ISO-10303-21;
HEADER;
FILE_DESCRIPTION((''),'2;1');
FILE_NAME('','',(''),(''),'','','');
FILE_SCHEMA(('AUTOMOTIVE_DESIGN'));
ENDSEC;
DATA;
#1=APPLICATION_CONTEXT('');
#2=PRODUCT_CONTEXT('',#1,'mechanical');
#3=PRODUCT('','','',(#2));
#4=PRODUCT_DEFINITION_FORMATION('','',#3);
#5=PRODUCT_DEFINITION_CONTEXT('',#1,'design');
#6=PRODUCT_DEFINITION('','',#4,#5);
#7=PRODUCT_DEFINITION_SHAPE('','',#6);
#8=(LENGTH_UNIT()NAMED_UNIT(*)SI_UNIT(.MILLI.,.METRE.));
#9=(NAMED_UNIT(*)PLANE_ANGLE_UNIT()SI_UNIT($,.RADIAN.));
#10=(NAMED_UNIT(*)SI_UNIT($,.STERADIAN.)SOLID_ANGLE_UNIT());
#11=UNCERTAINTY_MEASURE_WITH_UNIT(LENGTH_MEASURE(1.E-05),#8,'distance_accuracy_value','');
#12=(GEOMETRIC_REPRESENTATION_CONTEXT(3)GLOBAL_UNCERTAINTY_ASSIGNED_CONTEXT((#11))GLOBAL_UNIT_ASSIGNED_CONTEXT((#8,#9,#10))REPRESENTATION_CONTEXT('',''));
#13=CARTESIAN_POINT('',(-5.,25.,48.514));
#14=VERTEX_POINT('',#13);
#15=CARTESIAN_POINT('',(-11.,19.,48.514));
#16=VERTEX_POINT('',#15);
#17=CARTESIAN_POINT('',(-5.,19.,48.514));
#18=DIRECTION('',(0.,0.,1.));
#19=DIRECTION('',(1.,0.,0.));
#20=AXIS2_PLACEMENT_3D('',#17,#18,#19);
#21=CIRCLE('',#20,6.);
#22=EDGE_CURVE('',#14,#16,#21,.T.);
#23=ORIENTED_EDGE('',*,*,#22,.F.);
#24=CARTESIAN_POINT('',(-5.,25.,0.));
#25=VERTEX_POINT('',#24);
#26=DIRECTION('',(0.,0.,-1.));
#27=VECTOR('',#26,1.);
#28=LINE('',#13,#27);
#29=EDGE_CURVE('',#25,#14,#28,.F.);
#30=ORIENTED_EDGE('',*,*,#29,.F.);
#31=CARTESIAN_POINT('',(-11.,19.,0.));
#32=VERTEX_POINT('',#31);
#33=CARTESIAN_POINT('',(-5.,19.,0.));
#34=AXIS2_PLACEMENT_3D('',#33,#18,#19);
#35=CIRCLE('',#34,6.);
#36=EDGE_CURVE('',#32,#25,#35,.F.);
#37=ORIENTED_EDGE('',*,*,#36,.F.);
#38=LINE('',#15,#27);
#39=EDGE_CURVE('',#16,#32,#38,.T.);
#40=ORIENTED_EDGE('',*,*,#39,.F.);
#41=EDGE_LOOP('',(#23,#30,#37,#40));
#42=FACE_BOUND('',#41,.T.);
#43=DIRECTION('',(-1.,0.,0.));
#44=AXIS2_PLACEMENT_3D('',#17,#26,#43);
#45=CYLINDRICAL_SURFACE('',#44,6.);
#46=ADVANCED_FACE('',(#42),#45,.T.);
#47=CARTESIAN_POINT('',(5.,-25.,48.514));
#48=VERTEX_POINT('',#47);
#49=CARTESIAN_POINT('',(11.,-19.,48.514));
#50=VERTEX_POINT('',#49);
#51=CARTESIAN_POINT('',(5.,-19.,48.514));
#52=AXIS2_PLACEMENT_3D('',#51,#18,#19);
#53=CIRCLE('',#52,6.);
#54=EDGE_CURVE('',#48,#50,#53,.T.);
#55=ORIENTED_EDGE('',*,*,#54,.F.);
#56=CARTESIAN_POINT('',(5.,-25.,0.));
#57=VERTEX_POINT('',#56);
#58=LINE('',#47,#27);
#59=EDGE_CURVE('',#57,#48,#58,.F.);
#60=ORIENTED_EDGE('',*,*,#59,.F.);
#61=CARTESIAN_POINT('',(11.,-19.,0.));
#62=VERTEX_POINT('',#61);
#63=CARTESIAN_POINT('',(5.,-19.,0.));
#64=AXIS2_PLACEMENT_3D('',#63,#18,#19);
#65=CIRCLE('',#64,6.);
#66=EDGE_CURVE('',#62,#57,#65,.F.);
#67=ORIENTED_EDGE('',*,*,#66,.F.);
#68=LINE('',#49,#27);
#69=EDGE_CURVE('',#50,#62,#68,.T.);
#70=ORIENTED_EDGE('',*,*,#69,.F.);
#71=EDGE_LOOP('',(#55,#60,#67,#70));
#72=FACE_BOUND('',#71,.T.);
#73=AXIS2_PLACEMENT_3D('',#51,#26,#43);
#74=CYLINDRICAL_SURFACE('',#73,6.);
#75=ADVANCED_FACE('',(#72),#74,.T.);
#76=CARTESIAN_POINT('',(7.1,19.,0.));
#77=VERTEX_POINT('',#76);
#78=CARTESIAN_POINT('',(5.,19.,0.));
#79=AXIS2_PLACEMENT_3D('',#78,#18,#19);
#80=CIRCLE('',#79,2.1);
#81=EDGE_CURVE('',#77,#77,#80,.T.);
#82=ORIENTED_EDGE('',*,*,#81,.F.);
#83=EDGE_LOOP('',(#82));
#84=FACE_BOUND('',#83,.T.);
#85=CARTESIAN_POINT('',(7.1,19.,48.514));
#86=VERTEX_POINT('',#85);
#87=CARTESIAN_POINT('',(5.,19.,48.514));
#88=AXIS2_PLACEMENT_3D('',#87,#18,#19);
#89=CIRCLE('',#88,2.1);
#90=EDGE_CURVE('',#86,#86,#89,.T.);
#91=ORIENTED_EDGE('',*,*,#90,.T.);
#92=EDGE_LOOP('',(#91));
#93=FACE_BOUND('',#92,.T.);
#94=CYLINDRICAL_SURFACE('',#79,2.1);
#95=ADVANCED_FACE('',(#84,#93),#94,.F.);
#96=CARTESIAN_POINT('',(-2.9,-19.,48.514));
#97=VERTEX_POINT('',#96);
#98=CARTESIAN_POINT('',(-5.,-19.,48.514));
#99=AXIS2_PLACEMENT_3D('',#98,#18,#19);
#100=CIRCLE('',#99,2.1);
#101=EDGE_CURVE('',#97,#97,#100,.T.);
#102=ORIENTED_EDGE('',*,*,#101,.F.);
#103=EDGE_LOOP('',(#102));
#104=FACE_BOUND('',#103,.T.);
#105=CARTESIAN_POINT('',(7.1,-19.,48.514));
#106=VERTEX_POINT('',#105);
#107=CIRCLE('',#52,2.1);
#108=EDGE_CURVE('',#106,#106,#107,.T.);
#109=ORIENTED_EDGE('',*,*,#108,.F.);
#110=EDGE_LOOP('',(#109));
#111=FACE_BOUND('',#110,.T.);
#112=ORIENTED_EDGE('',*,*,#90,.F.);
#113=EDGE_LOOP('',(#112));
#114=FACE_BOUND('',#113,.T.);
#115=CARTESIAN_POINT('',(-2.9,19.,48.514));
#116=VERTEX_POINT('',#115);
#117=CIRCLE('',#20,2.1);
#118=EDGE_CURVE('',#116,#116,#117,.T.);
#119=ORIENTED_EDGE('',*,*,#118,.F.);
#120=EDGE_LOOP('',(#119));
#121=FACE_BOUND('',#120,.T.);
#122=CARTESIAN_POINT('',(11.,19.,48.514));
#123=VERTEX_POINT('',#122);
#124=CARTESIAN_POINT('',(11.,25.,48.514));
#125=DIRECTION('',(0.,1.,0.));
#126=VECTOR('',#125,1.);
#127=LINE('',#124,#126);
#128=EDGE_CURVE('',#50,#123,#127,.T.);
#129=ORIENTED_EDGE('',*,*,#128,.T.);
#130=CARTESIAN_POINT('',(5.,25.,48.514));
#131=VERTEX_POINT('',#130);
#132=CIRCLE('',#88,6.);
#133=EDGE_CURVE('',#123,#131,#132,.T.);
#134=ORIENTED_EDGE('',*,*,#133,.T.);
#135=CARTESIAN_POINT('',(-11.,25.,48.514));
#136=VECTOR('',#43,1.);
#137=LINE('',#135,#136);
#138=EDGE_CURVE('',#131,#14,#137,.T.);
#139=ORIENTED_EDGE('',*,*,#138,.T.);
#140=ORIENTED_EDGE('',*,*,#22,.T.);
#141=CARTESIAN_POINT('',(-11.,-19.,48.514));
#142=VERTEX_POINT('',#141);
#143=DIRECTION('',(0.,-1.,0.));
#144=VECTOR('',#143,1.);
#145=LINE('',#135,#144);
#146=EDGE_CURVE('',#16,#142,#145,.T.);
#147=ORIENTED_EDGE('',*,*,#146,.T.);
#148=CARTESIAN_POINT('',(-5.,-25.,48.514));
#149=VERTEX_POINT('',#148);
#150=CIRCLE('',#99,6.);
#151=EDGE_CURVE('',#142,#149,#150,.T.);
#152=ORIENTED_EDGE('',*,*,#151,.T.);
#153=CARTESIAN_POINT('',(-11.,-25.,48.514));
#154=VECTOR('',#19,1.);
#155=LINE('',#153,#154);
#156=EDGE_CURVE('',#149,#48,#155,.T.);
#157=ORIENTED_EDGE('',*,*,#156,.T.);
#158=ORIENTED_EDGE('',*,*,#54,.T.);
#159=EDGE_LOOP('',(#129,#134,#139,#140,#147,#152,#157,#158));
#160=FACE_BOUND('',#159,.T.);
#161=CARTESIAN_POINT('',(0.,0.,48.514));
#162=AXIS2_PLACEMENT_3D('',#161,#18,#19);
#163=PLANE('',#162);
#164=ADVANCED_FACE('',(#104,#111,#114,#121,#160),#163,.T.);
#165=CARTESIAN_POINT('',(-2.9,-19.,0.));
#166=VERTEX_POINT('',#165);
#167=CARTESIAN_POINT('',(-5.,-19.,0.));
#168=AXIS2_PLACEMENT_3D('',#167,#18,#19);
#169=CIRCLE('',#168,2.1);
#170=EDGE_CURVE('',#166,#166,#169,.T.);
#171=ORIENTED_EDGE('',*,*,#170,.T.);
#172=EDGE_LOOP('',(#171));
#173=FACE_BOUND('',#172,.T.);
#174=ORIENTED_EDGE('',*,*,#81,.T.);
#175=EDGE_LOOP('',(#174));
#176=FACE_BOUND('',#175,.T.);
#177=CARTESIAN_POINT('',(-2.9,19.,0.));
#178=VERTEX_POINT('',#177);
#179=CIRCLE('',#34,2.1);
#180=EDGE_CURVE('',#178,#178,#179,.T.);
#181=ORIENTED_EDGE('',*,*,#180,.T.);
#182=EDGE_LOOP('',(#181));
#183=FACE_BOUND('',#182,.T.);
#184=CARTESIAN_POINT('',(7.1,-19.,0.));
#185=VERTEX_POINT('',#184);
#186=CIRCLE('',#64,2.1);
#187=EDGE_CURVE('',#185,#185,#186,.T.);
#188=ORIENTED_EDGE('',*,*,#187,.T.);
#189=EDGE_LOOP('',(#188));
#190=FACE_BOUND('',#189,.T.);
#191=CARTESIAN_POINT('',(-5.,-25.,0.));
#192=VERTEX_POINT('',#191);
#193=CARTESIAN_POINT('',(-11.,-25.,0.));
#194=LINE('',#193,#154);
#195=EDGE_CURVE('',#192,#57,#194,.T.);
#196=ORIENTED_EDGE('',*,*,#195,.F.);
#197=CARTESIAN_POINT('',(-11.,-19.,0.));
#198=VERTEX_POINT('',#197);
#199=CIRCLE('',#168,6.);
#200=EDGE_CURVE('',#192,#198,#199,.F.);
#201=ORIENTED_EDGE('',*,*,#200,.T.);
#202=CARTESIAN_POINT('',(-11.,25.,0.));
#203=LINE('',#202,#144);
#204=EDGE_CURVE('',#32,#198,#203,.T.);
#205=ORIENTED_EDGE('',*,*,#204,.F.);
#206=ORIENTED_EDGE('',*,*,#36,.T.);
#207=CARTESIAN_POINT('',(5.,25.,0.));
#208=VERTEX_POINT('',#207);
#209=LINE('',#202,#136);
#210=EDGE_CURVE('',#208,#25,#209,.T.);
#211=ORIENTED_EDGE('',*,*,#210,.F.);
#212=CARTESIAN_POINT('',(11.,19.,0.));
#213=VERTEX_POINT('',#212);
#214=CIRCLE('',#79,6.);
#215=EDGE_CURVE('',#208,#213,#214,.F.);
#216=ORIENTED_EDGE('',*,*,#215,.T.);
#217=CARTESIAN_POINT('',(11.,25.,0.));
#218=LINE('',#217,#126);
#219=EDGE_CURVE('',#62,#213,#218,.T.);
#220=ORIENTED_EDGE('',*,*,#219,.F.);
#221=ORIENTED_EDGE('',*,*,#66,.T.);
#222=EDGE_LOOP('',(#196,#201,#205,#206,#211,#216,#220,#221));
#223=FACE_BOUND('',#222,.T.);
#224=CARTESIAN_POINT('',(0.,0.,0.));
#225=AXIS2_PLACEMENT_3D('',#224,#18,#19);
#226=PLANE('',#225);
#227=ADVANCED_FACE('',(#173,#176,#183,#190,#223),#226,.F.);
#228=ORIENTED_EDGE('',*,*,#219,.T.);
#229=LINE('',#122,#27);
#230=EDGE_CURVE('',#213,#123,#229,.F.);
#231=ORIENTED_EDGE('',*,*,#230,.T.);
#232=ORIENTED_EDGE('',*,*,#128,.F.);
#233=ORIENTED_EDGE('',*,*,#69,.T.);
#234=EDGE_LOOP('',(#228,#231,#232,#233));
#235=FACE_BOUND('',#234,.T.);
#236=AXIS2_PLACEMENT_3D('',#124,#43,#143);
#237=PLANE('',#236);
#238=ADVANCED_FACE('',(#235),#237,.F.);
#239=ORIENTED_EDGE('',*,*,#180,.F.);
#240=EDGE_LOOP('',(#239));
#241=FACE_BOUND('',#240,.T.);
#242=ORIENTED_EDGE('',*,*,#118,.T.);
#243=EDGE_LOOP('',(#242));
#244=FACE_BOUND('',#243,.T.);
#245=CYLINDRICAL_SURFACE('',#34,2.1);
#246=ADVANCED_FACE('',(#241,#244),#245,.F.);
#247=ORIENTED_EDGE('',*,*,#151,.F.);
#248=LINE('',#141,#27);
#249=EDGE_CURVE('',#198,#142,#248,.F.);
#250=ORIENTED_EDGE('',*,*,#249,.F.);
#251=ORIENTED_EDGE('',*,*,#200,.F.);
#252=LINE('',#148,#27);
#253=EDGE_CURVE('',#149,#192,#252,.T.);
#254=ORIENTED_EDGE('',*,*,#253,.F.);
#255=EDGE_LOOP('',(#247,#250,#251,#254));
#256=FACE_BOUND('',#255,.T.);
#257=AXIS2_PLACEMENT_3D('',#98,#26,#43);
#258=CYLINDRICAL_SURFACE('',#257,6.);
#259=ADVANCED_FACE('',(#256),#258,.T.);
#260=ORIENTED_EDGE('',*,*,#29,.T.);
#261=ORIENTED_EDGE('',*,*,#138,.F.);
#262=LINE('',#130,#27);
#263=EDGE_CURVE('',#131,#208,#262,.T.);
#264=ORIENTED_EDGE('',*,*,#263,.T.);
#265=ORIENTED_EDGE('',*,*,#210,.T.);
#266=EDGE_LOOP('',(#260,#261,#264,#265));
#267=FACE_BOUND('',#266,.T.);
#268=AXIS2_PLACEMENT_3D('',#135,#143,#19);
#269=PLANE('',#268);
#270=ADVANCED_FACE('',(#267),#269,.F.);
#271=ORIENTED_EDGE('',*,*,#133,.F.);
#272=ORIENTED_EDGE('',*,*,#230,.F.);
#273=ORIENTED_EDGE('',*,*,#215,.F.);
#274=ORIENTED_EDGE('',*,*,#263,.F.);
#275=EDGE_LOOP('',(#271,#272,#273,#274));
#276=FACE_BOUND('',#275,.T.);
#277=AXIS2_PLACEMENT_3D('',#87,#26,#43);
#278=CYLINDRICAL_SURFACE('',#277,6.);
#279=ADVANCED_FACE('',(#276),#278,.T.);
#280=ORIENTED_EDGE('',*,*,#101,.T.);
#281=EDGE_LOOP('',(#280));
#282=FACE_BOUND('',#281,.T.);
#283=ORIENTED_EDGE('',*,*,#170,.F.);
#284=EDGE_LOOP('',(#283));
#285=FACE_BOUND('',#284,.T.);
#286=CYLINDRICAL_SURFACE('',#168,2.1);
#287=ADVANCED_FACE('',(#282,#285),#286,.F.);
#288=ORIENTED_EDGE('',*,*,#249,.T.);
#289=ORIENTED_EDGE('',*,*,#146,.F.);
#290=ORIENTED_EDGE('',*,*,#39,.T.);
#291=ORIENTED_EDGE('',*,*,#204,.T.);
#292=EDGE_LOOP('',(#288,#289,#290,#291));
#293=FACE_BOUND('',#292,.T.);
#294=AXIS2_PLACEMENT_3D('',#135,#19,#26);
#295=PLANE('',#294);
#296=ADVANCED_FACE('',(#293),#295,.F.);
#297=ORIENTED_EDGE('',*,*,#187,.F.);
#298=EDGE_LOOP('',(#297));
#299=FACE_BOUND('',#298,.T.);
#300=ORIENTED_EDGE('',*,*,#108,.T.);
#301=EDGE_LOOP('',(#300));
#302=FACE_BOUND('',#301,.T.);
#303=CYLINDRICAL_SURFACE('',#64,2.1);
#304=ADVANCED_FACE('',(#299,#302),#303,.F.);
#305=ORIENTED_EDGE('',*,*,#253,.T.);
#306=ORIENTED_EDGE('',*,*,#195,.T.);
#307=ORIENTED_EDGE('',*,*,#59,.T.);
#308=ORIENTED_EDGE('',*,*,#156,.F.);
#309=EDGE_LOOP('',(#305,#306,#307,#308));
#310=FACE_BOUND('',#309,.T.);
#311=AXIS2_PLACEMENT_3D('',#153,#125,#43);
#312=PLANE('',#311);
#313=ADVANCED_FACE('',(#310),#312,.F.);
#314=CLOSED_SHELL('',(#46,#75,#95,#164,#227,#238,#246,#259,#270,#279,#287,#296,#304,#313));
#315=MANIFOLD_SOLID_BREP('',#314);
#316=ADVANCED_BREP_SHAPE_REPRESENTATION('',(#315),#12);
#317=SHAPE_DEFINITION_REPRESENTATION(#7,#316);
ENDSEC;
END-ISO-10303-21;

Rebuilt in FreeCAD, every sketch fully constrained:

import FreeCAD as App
import Part
import Sketcher

V = App.Vector


def edges_at(feature, points):
    """Names of the edges that pass closest to the given points."""
    edges = feature.Shape.Edges
    near = lambda p: min(range(len(edges)), key=lambda i: edges[i].distToShape(Part.Vertex(*p))[0])
    return sorted({f"Edge{near(p) + 1}" for p in points})

doc = App.newDocument("Part")
body = doc.addObject("PartDesign::Body", "Body")

sketch1 = doc.addObject("Sketcher::SketchObject", "Sketch")
body.addObject(sketch1)
sketch1.AttachmentSupport = (doc.XY_Plane, [""])
sketch1.MapMode = "FlatFace"
sketch1.addGeometry([
    Part.LineSegment(V(-11, 25, 0), V(-11, -25, 0)),
    Part.LineSegment(V(-11, -25, 0), V(11, -25, 0)),
    Part.LineSegment(V(11, -25, 0), V(11, 25, 0)),
    Part.LineSegment(V(11, 25, 0), V(-11, 25, 0)),
], False)
sketch1.addConstraint([
    Sketcher.Constraint("Coincident", 0, 2, 1, 1),
    Sketcher.Constraint("Coincident", 1, 2, 2, 1),
    Sketcher.Constraint("Coincident", 2, 2, 3, 1),
    Sketcher.Constraint("Coincident", 3, 2, 0, 1),
    Sketcher.Constraint("Vertical", 0),
    Sketcher.Constraint("Horizontal", 1),
    Sketcher.Constraint("Vertical", 2),
    Sketcher.Constraint("Horizontal", 3),
    Sketcher.Constraint("Symmetric", 0, 2, 2, 2, -1, 1),
    Sketcher.Constraint("DistanceX", 1, 1, 1, 2, 22.0),
    Sketcher.Constraint("DistanceY", 0, 2, 0, 1, 50.0),
])
pad1 = doc.addObject("PartDesign::Pad", "Pad")
body.addObject(pad1)
pad1.Profile = sketch1
pad1.Length = 48.514
doc.recompute()

fillet = doc.addObject("PartDesign::Fillet", "Fillet")
body.addObject(fillet)
fillet.Base = (pad1, edges_at(pad1, [
    (-11, 25, 24.257),
    (11, 25, 24.257),
    (11, -25, 24.257),
    (-11, -25, 24.257),
]))
fillet.Radius = 6

sketch2 = doc.addObject("Sketcher::SketchObject", "Sketch001")
body.addObject(sketch2)
sketch2.AttachmentSupport = (doc.XY_Plane, [""])
sketch2.MapMode = "FlatFace"
sketch2.AttachmentOffset = App.Placement(V(0, 0, 48.514), App.Rotation())
sketch2.addGeometry([
    Part.Circle(V(-5, 19, 0), V(0, 0, 1), 2.1),
    Part.Circle(V(5, 19, 0), V(0, 0, 1), 2.1),
    Part.Circle(V(-5, -19, 0), V(0, 0, 1), 2.1),
    Part.Circle(V(5, -19, 0), V(0, 0, 1), 2.1),
], False)
sketch2.addConstraint([
    Sketcher.Constraint("Equal", 0, 1),
    Sketcher.Constraint("Equal", 1, 2),
    Sketcher.Constraint("Equal", 2, 3),
    Sketcher.Constraint("Symmetric", 1, 3, 2, 3, -1, 1),
    Sketcher.Constraint("Symmetric", 0, 3, 3, 3, -1, 1),
    Sketcher.Constraint("Symmetric", 0, 3, 1, 3, -2),
    Sketcher.Constraint("Diameter", 0, 4.2),
    Sketcher.Constraint("DistanceX", 0, 3, -1, 1, 5.0),
    Sketcher.Constraint("DistanceY", -1, 1, 0, 3, 19.0),
])
pocket1 = doc.addObject("PartDesign::Pocket", "Pocket")
body.addObject(pocket1)
pocket1.Profile = sketch2
pocket1.Type = "ThroughAll"

doc.recompute()
